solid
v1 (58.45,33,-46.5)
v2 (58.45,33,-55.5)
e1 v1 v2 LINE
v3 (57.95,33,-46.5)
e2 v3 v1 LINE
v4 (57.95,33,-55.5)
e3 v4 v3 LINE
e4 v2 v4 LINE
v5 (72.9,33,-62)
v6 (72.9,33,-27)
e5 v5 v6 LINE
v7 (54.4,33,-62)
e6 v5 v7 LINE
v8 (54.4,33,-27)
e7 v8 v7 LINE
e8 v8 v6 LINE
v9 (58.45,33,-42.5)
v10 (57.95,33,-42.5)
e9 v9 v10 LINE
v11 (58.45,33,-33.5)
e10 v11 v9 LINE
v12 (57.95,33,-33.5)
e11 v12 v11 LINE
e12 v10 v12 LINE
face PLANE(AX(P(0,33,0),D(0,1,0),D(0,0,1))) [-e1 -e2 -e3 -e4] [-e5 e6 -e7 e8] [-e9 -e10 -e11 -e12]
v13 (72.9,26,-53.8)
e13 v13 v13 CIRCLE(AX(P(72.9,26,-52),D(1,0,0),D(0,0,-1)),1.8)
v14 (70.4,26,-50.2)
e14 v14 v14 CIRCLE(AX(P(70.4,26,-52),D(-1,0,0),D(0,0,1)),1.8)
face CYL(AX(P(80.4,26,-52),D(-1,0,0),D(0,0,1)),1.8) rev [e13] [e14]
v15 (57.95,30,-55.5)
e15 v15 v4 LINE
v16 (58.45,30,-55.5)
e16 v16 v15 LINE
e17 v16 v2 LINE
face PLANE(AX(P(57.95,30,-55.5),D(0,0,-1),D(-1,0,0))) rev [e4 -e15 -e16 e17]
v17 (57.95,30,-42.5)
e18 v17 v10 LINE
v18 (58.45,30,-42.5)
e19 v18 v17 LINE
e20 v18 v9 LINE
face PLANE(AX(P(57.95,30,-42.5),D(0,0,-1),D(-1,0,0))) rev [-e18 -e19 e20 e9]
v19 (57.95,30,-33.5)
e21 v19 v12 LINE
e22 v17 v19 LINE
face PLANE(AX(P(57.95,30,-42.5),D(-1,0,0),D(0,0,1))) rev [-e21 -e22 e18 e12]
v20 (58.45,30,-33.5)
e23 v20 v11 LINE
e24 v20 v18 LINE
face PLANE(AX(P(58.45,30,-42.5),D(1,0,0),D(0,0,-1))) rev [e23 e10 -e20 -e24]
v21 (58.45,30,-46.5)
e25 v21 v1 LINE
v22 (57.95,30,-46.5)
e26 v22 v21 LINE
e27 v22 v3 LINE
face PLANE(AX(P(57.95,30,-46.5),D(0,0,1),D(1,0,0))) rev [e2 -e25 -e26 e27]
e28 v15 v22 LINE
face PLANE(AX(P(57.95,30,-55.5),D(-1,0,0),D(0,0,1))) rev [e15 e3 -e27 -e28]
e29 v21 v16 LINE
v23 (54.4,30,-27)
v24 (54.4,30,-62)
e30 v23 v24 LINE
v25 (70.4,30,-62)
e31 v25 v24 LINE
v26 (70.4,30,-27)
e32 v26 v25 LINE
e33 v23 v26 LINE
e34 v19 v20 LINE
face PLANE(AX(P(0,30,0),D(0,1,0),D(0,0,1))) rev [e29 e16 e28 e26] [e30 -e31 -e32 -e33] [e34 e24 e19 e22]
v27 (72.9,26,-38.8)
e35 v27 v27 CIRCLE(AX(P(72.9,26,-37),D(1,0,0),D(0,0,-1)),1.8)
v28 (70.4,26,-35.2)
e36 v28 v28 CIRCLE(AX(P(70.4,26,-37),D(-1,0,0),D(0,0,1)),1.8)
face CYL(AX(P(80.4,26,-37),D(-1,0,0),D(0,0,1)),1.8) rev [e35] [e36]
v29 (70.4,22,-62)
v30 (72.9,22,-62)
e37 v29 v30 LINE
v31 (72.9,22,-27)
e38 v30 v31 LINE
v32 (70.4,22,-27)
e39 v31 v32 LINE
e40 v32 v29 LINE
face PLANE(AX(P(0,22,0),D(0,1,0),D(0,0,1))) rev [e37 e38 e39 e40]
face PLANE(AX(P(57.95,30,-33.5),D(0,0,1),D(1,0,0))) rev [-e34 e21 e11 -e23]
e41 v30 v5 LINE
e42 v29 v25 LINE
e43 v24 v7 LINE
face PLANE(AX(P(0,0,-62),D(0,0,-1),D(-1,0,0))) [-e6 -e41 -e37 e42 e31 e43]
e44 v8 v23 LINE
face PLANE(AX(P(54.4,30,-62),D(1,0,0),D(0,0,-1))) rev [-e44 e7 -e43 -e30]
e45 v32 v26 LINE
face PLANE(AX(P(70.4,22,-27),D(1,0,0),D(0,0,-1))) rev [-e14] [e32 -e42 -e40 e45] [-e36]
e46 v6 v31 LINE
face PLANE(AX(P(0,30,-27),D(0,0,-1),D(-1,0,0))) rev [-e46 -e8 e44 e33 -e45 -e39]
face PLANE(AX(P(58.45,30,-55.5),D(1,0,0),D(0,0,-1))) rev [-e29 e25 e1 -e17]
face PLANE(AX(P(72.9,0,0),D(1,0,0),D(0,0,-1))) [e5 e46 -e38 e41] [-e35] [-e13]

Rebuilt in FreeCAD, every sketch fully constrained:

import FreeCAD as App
import Part
import Sketcher
from FreeCAD import Vector


def add_polygon(sketch, points):
    """Adds a closed chain of lines whose ends are joined by coincident constraints."""
    first, n = sketch.GeometryCount, len(points)
    for a, b in zip(points, points[1:] + points[:1]):
        sketch.addGeometry(Part.LineSegment(App.Vector(*a, 0), App.Vector(*b, 0)), False)
    for i in range(n):
        sketch.addConstraint(Sketcher.Constraint("Coincident", first + i, 2, first + (i + 1) % n, 1))

doc = App.newDocument("Part")
body = doc.addObject("PartDesign::Body", "Body")

sketch1 = body.newObject("Sketcher::SketchObject", "Sketch")
sketch1.AttachmentSupport = (doc.getObject("XZ_Plane"), [""])
sketch1.MapMode = "FlatFace"
add_polygon(sketch1, [(0, -2), (0, 0), (70.4, 0), (70.4, -2)])
sketch1.addConstraint(Sketcher.Constraint("Vertical", 0))
sketch1.addConstraint(Sketcher.Constraint("Horizontal", 1))
sketch1.addConstraint(Sketcher.Constraint("Vertical", 2))
sketch1.addConstraint(Sketcher.Constraint("Horizontal", 3))
sketch1.addConstraint(Sketcher.Constraint("Coincident", 0, 2, -1, 1))
sketch1.addConstraint(Sketcher.Constraint("DistanceY", 0, 1, 0, 2, 2.0))
sketch1.addConstraint(Sketcher.Constraint("DistanceX", 1, 1, 1, 2, 70.4))
pad1 = body.newObject("PartDesign::Pad", "Pad")
pad1.Profile = sketch1
pad1.Length = 10
pad1.Reversed = True

sketch2 = body.newObject("Sketcher::SketchObject", "Sketch001")
sketch2.AttachmentSupport = (doc.getObject("XZ_Plane"), [""])
sketch2.MapMode = "FlatFace"
sketch2.AttachmentOffset = App.Placement(Vector(0, 0, -10), App.Rotation())
add_polygon(sketch2, [(0, -57), (0, -2), (2, -2), (2, -57)])
add_polygon(sketch2, [(68.4, -57), (68.4, -2), (70.4, -2), (70.4, -57)])
sketch2.addConstraint(Sketcher.Constraint("Vertical", 0))
sketch2.addConstraint(Sketcher.Constraint("Horizontal", 1))
sketch2.addConstraint(Sketcher.Constraint("Vertical", 2))
sketch2.addConstraint(Sketcher.Constraint("Horizontal", 3))
sketch2.addConstraint(Sketcher.Constraint("Vertical", 4))
sketch2.addConstraint(Sketcher.Constraint("Horizontal", 5))
sketch2.addConstraint(Sketcher.Constraint("Vertical", 6))
sketch2.addConstraint(Sketcher.Constraint("Horizontal", 7))
sketch2.addConstraint(Sketcher.Constraint("PointOnObject", 0, 2, -2))
sketch2.addConstraint(Sketcher.Constraint("Horizontal", 1, 2, 4, 2))
sketch2.addConstraint(Sketcher.Constraint("Horizontal", 3, 2, 6, 2))
sketch2.addConstraint(Sketcher.Constraint("Equal", 3, 5))
sketch2.addConstraint(Sketcher.Constraint("DistanceX", 1, 1, 1, 2, 2.0))
sketch2.addConstraint(Sketcher.Constraint("DistanceY", 0, 1, 0, 2, 55.0))
sketch2.addConstraint(Sketcher.Constraint("DistanceY", 0, 2, -1, 1, 2.0))
sketch2.addConstraint(Sketcher.Constraint("DistanceX", -1, 1, 4, 2, 68.4))
pad2 = body.newObject("PartDesign::Pad", "Pad001")
pad2.Profile = sketch2
pad2.Length = 10

sketch3 = body.newObject("Sketcher::SketchObject", "Sketch002")
sketch3.AttachmentSupport = (doc.getObject("XY_Plane"), [""])
sketch3.MapMode = "FlatFace"
add_polygon(sketch3, [(25.7, 13), (25.7, 10), (44.7, 10), (44.7, 13)])
sketch3.addConstraint(Sketcher.Constraint("Vertical", 0))
sketch3.addConstraint(Sketcher.Constraint("Horizontal", 1))
sketch3.addConstraint(Sketcher.Constraint("Vertical", 2))
sketch3.addConstraint(Sketcher.Constraint("Horizontal", 3))
sketch3.addConstraint(Sketcher.Constraint("DistanceX", 1, 1, 1, 2, 19.0))
sketch3.addConstraint(Sketcher.Constraint("DistanceY", 0, 2, 0, 1, 3.0))
sketch3.addConstraint(Sketcher.Constraint("DistanceY", -1, 1, 0, 2, 10.0))
sketch3.addConstraint(Sketcher.Constraint("DistanceX", -1, 1, 0, 2, 25.7))
pad3 = body.newObject("PartDesign::Pad", "Pad002")
pad3.Profile = sketch3
pad3.Length = 2
pad3.Reversed = True

sketch4 = body.newObject("Sketcher::SketchObject", "Sketch003")
sketch4.AttachmentSupport = (doc.getObject("XY_Plane"), [""])
sketch4.MapMode = "FlatFace"
add_polygon(sketch4, [(27.7, 10), (27.7, 0), (42.7, 0), (42.7, 10)])
sketch4.addConstraint(Sketcher.Constraint("Vertical", 0))
sketch4.addConstraint(Sketcher.Constraint("Horizontal", 1))
sketch4.addConstraint(Sketcher.Constraint("Vertical", 2))
sketch4.addConstraint(Sketcher.Constraint("Horizontal", 3))
sketch4.addConstraint(Sketcher.Constraint("PointOnObject", 0, 2, -1))
sketch4.addConstraint(Sketcher.Constraint("DistanceX", 1, 1, 1, 2, 15.0))
sketch4.addConstraint(Sketcher.Constraint("DistanceY", 0, 2, 0, 1, 10.0))
sketch4.addConstraint(Sketcher.Constraint("DistanceX", -1, 1, 0, 2, 27.7))
pocket1 = body.newObject("PartDesign::Pocket", "Pocket")
pocket1.Profile = sketch4
pocket1.Length = 2

sketch5 = body.newObject("Sketcher::SketchObject", "Sketch004")
sketch5.AttachmentSupport = (doc.getObject("YZ_Plane"), [""])
sketch5.MapMode = "FlatFace"
sketch5.AttachmentOffset = App.Placement(Vector(0, 0, 25.7), App.Rotation())
add_polygon(sketch5, [(13, -2), (10, -2), (10, 0), (13, 0)])
sketch5.addConstraint(Sketcher.Constraint("Horizontal", 0))
sketch5.addConstraint(Sketcher.Constraint("Vertical", 1))
sketch5.addConstraint(Sketcher.Constraint("Horizontal", 2))
sketch5.addConstraint(Sketcher.Constraint("Vertical", 3))
sketch5.addConstraint(Sketcher.Constraint("PointOnObject", 1, 2, -1))
sketch5.addConstraint(Sketcher.Constraint("DistanceX", 0, 2, 0, 1, 3.0))
sketch5.addConstraint(Sketcher.Constraint("DistanceY", 1, 1, 1, 2, 2.0))
sketch5.addConstraint(Sketcher.Constraint("DistanceX", -1, 1, 0, 2, 10.0))
pad4 = body.newObject("PartDesign::Pad", "Pad003")
pad4.Profile = sketch5
pad4.Length = 1
pad4.Reversed = True

sketch6 = body.newObject("Sketcher::SketchObject", "Sketch005")
sketch6.AttachmentSupport = (doc.getObject("YZ_Plane"), [""])
sketch6.MapMode = "FlatFace"
sketch6.AttachmentOffset = App.Placement(Vector(0, 0, 44.7), App.Rotation())
add_polygon(sketch6, [(13, 0), (10, 0), (10, -2), (13, -2)])
sketch6.addConstraint(Sketcher.Constraint("Horizontal", 0))
sketch6.addConstraint(Sketcher.Constraint("Vertical", 1))
sketch6.addConstraint(Sketcher.Constraint("Horizontal", 2))
sketch6.addConstraint(Sketcher.Constraint("Vertical", 3))
sketch6.addConstraint(Sketcher.Constraint("PointOnObject", 0, 2, -1))
sketch6.addConstraint(Sketcher.Constraint("DistanceX", 0, 2, 0, 1, 3.0))
sketch6.addConstraint(Sketcher.Constraint("DistanceY", 1, 2, 1, 1, 2.0))
sketch6.addConstraint(Sketcher.Constraint("DistanceX", -1, 1, 0, 2, 10.0))
pad5 = body.newObject("PartDesign::Pad", "Pad004")
pad5.Profile = sketch6
pad5.Length = 1

sketch7 = body.newObject("Sketcher::SketchObject", "Sketch006")
sketch7.AttachmentSupport = (doc.getObject("YZ_Plane"), [""])
sketch7.MapMode = "FlatFace"
add_polygon(sketch7, [(2, -57), (0, -57), (0, 0), (2, 0)])
sketch7.addConstraint(Sketcher.Constraint("Horizontal", 0))
sketch7.addConstraint(Sketcher.Constraint("Vertical", 1))
sketch7.addConstraint(Sketcher.Constraint("Horizontal", 2))
sketch7.addConstraint(Sketcher.Constraint("Vertical", 3))
sketch7.addConstraint(Sketcher.Constraint("Coincident", 1, 2, -1, 1))
sketch7.addConstraint(Sketcher.Constraint("DistanceX", 0, 2, 0, 1, 2.0))
sketch7.addConstraint(Sketcher.Constraint("DistanceY", 1, 1, 1, 2, 57.0))
pad6 = body.newObject("PartDesign::Pad", "Pad005")
pad6.Profile = sketch7
pad6.Length = 6.6
pad6.Reversed = True

sketch8 = body.newObject("Sketcher::SketchObject", "Sketch007")
sketch8.AttachmentSupport = (doc.getObject("YZ_Plane"), [""])
sketch8.MapMode = "FlatFace"
sketch8.AttachmentOffset = App.Placement(Vector(0, 0, 70.4), App.Rotation())
add_polygon(sketch8, [(2, 0), (0, 0), (0, -57), (2, -57)])
sketch8.addConstraint(Sketcher.Constraint("Horizontal", 0))
sketch8.addConstraint(Sketcher.Constraint("Vertical", 1))
sketch8.addConstraint(Sketcher.Constraint("Horizontal", 2))
sketch8.addConstraint(Sketcher.Constraint("Vertical", 3))
sketch8.addConstraint(Sketcher.Constraint("Coincident", 0, 2, -1, 1))
sketch8.addConstraint(Sketcher.Constraint("DistanceX", 0, 2, 0, 1, 2.0))
sketch8.addConstraint(Sketcher.Constraint("DistanceY", 1, 2, 1, 1, 57.0))
pad7 = body.newObject("PartDesign::Pad", "Pad006")
pad7.Profile = sketch8
pad7.Length = 6.6

sketch9 = body.newObject("Sketcher::SketchObject", "Sketch008")
sketch9.AttachmentSupport = (doc.getObject("XY_Plane"), [""])
sketch9.MapMode = "FlatFace"
sketch9.AttachmentOffset = App.Placement(Vector(0, 0, -57), App.Rotation())
add_polygon(sketch9, [(2, 10), (2, 0), (-6.6, 0), (-6.6, 2), (0, 2), (0, 10)])
add_polygon(sketch9, [(77, 0), (68.4, 0), (68.4, 10), (70.4, 10), (70.4, 2), (77, 2)])
sketch9.addConstraint(Sketcher.Constraint("Vertical", 0))
sketch9.addConstraint(Sketcher.Constraint("Horizontal", 1))
sketch9.addConstraint(Sketcher.Constraint("Vertical", 2))
sketch9.addConstraint(Sketcher.Constraint("Horizontal", 3))
sketch9.addConstraint(Sketcher.Constraint("Vertical", 4))
sketch9.addConstraint(Sketcher.Constraint("Horizontal", 5))
sketch9.addConstraint(Sketcher.Constraint("Horizontal", 6))
sketch9.addConstraint(Sketcher.Constraint("Vertical", 7))
sketch9.addConstraint(Sketcher.Constraint("Horizontal", 8))
sketch9.addConstraint(Sketcher.Constraint("Vertical", 9))
sketch9.addConstraint(Sketcher.Constraint("Horizontal", 10))
sketch9.addConstraint(Sketcher.Constraint("Vertical", 11))
sketch9.addConstraint(Sketcher.Constraint("PointOnObject", 0, 2, -1))
sketch9.addConstraint(Sketcher.Constraint("PointOnObject", 3, 2, -2))
sketch9.addConstraint(Sketcher.Constraint("PointOnObject", 6, 2, -1))
sketch9.addConstraint(Sketcher.Constraint("Horizontal", 5, 2, 7, 2))
sketch9.addConstraint(Sketcher.Constraint("Horizontal", 3, 2, 9, 2))
sketch9.addConstraint(Sketcher.Constraint("Equal", 1, 6))
sketch9.addConstraint(Sketcher.Constraint("Equal", 5, 8))
sketch9.addConstraint(Sketcher.Constraint("Equal", 8, 2))
sketch9.addConstraint(Sketcher.Constraint("DistanceX", 5, 1, 5, 2, 2.0))
sketch9.addConstraint(Sketcher.Constraint("DistanceY", 0, 2, 0, 1, 10.0))
sketch9.addConstraint(Sketcher.Constraint("DistanceX", 1, 2, 1, 1, 8.6))
sketch9.addConstraint(Sketcher.Constraint("DistanceX", -1, 1, 10, 2, 77.0))
pad8 = body.newObject("PartDesign::Pad", "Pad007")
pad8.Profile = sketch9
pad8.Length = 5
pad8.Reversed = True

sketch10 = body.newObject("Sketcher::SketchObject", "Sketch009")
sketch10.AttachmentSupport = (doc.getObject("XZ_Plane"), [""])
sketch10.MapMode = "FlatFace"
sketch10.AttachmentOffset = App.Placement(Vector(0, 0, -10), App.Rotation())
add_polygon(sketch10, [(0, -62), (0, -17), (2, -17), (2, -62)])
add_polygon(sketch10, [(68.4, -27), (70.4, -27), (70.4, -62), (68.4, -62)])
sketch10.addConstraint(Sketcher.Constraint("Vertical", 0))
sketch10.addConstraint(Sketcher.Constraint("Horizontal", 1))
sketch10.addConstraint(Sketcher.Constraint("Vertical", 2))
sketch10.addConstraint(Sketcher.Constraint("Horizontal", 3))
sketch10.addConstraint(Sketcher.Constraint("Horizontal", 4))
sketch10.addConstraint(Sketcher.Constraint("Vertical", 5))
sketch10.addConstraint(Sketcher.Constraint("Horizontal", 6))
sketch10.addConstraint(Sketcher.Constraint("Vertical", 7))
sketch10.addConstraint(Sketcher.Constraint("PointOnObject", 0, 2, -2))
sketch10.addConstraint(Sketcher.Constraint("Horizontal", 3, 2, 5, 2))
sketch10.addConstraint(Sketcher.Constraint("Equal", 3, 4))
sketch10.addConstraint(Sketcher.Constraint("DistanceX", 1, 1, 1, 2, 2.0))
sketch10.addConstraint(Sketcher.Constraint("DistanceY", 0, 1, 0, 2, 45.0))
sketch10.addConstraint(Sketcher.Constraint("DistanceY", 5, 2, 5, 1, 35.0))
sketch10.addConstraint(Sketcher.Constraint("DistanceY", 0, 2, -1, 1, 17.0))
sketch10.addConstraint(Sketcher.Constraint("DistanceX", -1, 1, 4, 2, 70.4))
pad9 = body.newObject("PartDesign::Pad", "Pad008")
pad9.Profile = sketch10
pad9.Length = 20
pad9.Reversed = True

sketch11 = body.newObject("Sketcher::SketchObject", "Sketch010")
sketch11.AttachmentSupport = (doc.getObject("XZ_Plane"), [""])
sketch11.MapMode = "FlatFace"
sketch11.AttachmentOffset = App.Placement(Vector(0, 0, -30), App.Rotation())
add_polygon(sketch11, [(0, -17), (35.2, -17), (35.2, -27), (70.4, -27), (70.4, -62), (0, -62)])
sketch11.addConstraint(Sketcher.Constraint("Horizontal", 0))
sketch11.addConstraint(Sketcher.Constraint("Vertical", 1))
sketch11.addConstraint(Sketcher.Constraint("Horizontal", 2))
sketch11.addConstraint(Sketcher.Constraint("Vertical", 3))
sketch11.addConstraint(Sketcher.Constraint("Horizontal", 4))
sketch11.addConstraint(Sketcher.Constraint("Vertical", 5))
sketch11.addConstraint(Sketcher.Constraint("PointOnObject", 4, 2, -2))
sketch11.addConstraint(Sketcher.Constraint("Equal", 0, 2))
sketch11.addConstraint(Sketcher.Constraint("DistanceY", 1, 2, 1, 1, 10.0))
sketch11.addConstraint(Sketcher.Constraint("DistanceY", 3, 2, 3, 1, 35.0))
sketch11.addConstraint(Sketcher.Constraint("DistanceX", 0, 1, 0, 2, 35.2))
sketch11.addConstraint(Sketcher.Constraint("DistanceY", 0, 2, -1, 1, 17.0))
pad10 = body.newObject("PartDesign::Pad", "Pad009")
pad10.Profile = sketch11
pad10.Length = 3
pad10.Reversed = True

sketch12 = body.newObject("Sketcher::SketchObject", "Sketch011")
sketch12.AttachmentSupport = (doc.getObject("XZ_Plane"), [""])
sketch12.MapMode = "FlatFace"
sketch12.AttachmentOffset = App.Placement(Vector(0, 0, -33), App.Rotation())
add_polygon(sketch12, [(11.45, -55.5), (11.45, -46.5), (11.95, -46.5), (11.95, -55.5)])
add_polygon(sketch12, [(11.45, -42.5), (11.45, -33.5), (11.95, -33.5), (11.95, -42.5)])
add_polygon(sketch12, [(11.45, -30), (11.45, -21), (11.95, -21), (11.95, -30)])
add_polygon(sketch12, [(57.95, -55.5), (57.95, -46.5), (58.45, -46.5), (58.45, -55.5)])
add_polygon(sketch12, [(57.95, -42.5), (57.95, -33.5), (58.45, -33.5), (58.45, -42.5)])
sketch12.addConstraint(Sketcher.Constraint("Vertical", 0))
sketch12.addConstraint(Sketcher.Constraint("Horizontal", 1))
sketch12.addConstraint(Sketcher.Constraint("Vertical", 2))
sketch12.addConstraint(Sketcher.Constraint("Horizontal", 3))
sketch12.addConstraint(Sketcher.Constraint("Vertical", 4))
sketch12.addConstraint(Sketcher.Constraint("Horizontal", 5))
sketch12.addConstraint(Sketcher.Constraint("Vertical", 6))
sketch12.addConstraint(Sketcher.Constraint("Horizontal", 7))
sketch12.addConstraint(Sketcher.Constraint("Vertical", 8))
sketch12.addConstraint(Sketcher.Constraint("Horizontal", 9))
sketch12.addConstraint(Sketcher.Constraint("Vertical", 10))
sketch12.addConstraint(Sketcher.Constraint("Horizontal", 11))
sketch12.addConstraint(Sketcher.Constraint("Vertical", 12))
sketch12.addConstraint(Sketcher.Constraint("Horizontal", 13))
sketch12.addConstraint(Sketcher.Constraint("Vertical", 14))
sketch12.addConstraint(Sketcher.Constraint("Horizontal", 15))
sketch12.addConstraint(Sketcher.Constraint("Vertical", 16))
sketch12.addConstraint(Sketcher.Constraint("Horizontal", 17))
sketch12.addConstraint(Sketcher.Constraint("Vertical", 18))
sketch12.addConstraint(Sketcher.Constraint("Horizontal", 19))
sketch12.addConstraint(Sketcher.Constraint("Horizontal", 1, 2, 12, 2))
sketch12.addConstraint(Sketcher.Constraint("Horizontal", 3, 2, 14, 2))
sketch12.addConstraint(Sketcher.Constraint("Horizontal", 5, 2, 16, 2))
sketch12.addConstraint(Sketcher.Constraint("Horizontal", 7, 2, 18, 2))
sketch12.addConstraint(Sketcher.Constraint("Vertical", 3, 2, 4, 2))
sketch12.addConstraint(Sketcher.Constraint("Vertical", 2, 2, 5, 2))
sketch12.addConstraint(Sketcher.Constraint("Vertical", 7, 2, 8, 2))
sketch12.addConstraint(Sketcher.Constraint("Vertical", 6, 2, 9, 2))
sketch12.addConstraint(Sketcher.Constraint("Vertical", 15, 2, 16, 2))
sketch12.addConstraint(Sketcher.Constraint("Vertical", 14, 2, 17, 2))
sketch12.addConstraint(Sketcher.Constraint("Equal", 11, 13))
sketch12.addConstraint(Sketcher.Constraint("Equal", 2, 4))
sketch12.addConstraint(Sketcher.Constraint("Equal", 6, 8))
sketch12.addConstraint(Sketcher.Constraint("DistanceY", 0, 1, 0, 2, 9.0))
sketch12.addConstraint(Sketcher.Constraint("DistanceX", 1, 1, 1, 2, 0.5))
sketch12.addConstraint(Sketcher.Constraint("DistanceY", 8, 2, -1, 1, 21.0))
sketch12.addConstraint(Sketcher.Constraint("DistanceY", 0, 2, 4, 2, 13.0))
sketch12.addConstraint(Sketcher.Constraint("DistanceX", 1, 2, 12, 2, 46.0))
sketch12.addConstraint(Sketcher.Constraint("DistanceY", 0, 2, -1, 1, 46.5))
sketch12.addConstraint(Sketcher.Constraint("DistanceX", -1, 1, 0, 2, 11.45))
pocket2 = body.newObject("PartDesign::Pocket", "Pocket001")
pocket2.Profile = sketch12
pocket2.Length = 3
pocket2.Reversed = True

sketch13 = body.newObject("Sketcher::SketchObject", "Sketch012")
sketch13.AttachmentSupport = (doc.getObject("XZ_Plane"), [""])
sketch13.MapMode = "FlatFace"
sketch13.AttachmentOffset = App.Placement(Vector(0, 0, -33), App.Rotation())
add_polygon(sketch13, [(16, -62), (16, -17), (54.4, -17), (54.4, -62)])
sketch13.addConstraint(Sketcher.Constraint("Vertical", 0))
sketch13.addConstraint(Sketcher.Constraint("Horizontal", 1))
sketch13.addConstraint(Sketcher.Constraint("Vertical", 2))
sketch13.addConstraint(Sketcher.Constraint("Horizontal", 3))
sketch13.addConstraint(Sketcher.Constraint("DistanceY", 0, 1, 0, 2, 45.0))
sketch13.addConstraint(Sketcher.Constraint("DistanceX", 1, 1, 1, 2, 38.4))
sketch13.addConstraint(Sketcher.Constraint("DistanceX", -1, 1, 0, 2, 16.0))
sketch13.addConstraint(Sketcher.Constraint("DistanceY", 0, 2, -1, 1, 17.0))
pocket3 = body.newObject("PartDesign::Pocket", "Pocket002")
pocket3.Profile = sketch13
pocket3.Length = 3
pocket3.Reversed = True

sketch14 = body.newObject("Sketcher::SketchObject", "Sketch013")
sketch14.AttachmentSupport = (doc.getObject("XY_Plane"), [""])
sketch14.MapMode = "FlatFace"
add_polygon(sketch14, [(-6.6, 0), (27.7, 0), (27.7, 10), (42.7, 10), (42.7, 0), (77, 0), (77, 2), (70.4, 2), (70.4, 10), (45.7, 10), (45.7, 13), (24.7, 13), (24.7, 10), (0, 10), (0, 2), (-6.6, 2)])
sketch14.addConstraint(Sketcher.Constraint("Horizontal", 0))
sketch14.addConstraint(Sketcher.Constraint("Vertical", 1))
sketch14.addConstraint(Sketcher.Constraint("Horizontal", 2))
sketch14.addConstraint(Sketcher.Constraint("Vertical", 3))
sketch14.addConstraint(Sketcher.Constraint("Horizontal", 4))
sketch14.addConstraint(Sketcher.Constraint("Vertical", 5))
sketch14.addConstraint(Sketcher.Constraint("Horizontal", 6))
sketch14.addConstraint(Sketcher.Constraint("Vertical", 7))
sketch14.addConstraint(Sketcher.Constraint("Horizontal", 8))
sketch14.addConstraint(Sketcher.Constraint("Vertical", 9))
sketch14.addConstraint(Sketcher.Constraint("Horizontal", 10))
sketch14.addConstraint(Sketcher.Constraint("Vertical", 11))
sketch14.addConstraint(Sketcher.Constraint("Horizontal", 12))
sketch14.addConstraint(Sketcher.Constraint("Vertical", 13))
sketch14.addConstraint(Sketcher.Constraint("Horizontal", 14))
sketch14.addConstraint(Sketcher.Constraint("Vertical", 15))
sketch14.addConstraint(Sketcher.Constraint("PointOnObject", 0, 2, -1))
sketch14.addConstraint(Sketcher.Constraint("PointOnObject", 3, 2, -1))
sketch14.addConstraint(Sketcher.Constraint("PointOnObject", 12, 2, -2))
sketch14.addConstraint(Sketcher.Constraint("Horizontal", 2, 2, 7, 2))
sketch14.addConstraint(Sketcher.Constraint("Horizontal", 8, 2, 11, 2))
sketch14.addConstraint(Sketcher.Constraint("Horizontal", 6, 2, 13, 2))
sketch14.addConstraint(Sketcher.Constraint("Equal", 0, 4))
sketch14.addConstraint(Sketcher.Constraint("Equal", 8, 12))
sketch14.addConstraint(Sketcher.Constraint("Equal", 6, 14))
sketch14.addConstraint(Sketcher.Constraint("DistanceX", 2, 1, 2, 2, 15.0))
sketch14.addConstraint(Sketcher.Constraint("DistanceX", 10, 2, 10, 1, 21.0))
sketch14.addConstraint(Sketcher.Constraint("DistanceY", 1, 1, 1, 2, 10.0))
sketch14.addConstraint(Sketcher.Constraint("DistanceY", 5, 1, 5, 2, 2.0))
sketch14.addConstraint(Sketcher.Constraint("DistanceY", 9, 1, 9, 2, 3.0))
sketch14.addConstraint(Sketcher.Constraint("DistanceX", 0, 1, 0, 2, 34.3))
sketch14.addConstraint(Sketcher.Constraint("DistanceX", 6, 2, 6, 1, 6.6))
pad11 = body.newObject("PartDesign::Pad", "Pad010")
pad11.Profile = sketch14
pad11.Length = 0.5

sketch15 = body.newObject("Sketcher::SketchObject", "Sketch014")
sketch15.AttachmentSupport = (doc.getObject("XZ_Plane"), [""])
sketch15.MapMode = "FlatFace"
sketch15.AttachmentOffset = App.Placement(Vector(0, 0, -2), App.Rotation())
sketch15.addGeometry(Part.Circle(Vector(-3.3, -55, 0), Vector(0, 0, 1), 1.8), False)
sketch15.addGeometry(Part.Circle(Vector(73.7, -55, 0), Vector(0, 0, 1), 1.8), False)
sketch15.addGeometry(Part.Circle(Vector(-3.3, -6.5, 0), Vector(0, 0, 1), 1.8), False)
sketch15.addGeometry(Part.Circle(Vector(73.7, -6.5, 0), Vector(0, 0, 1), 1.8), False)
sketch15.addGeometry(Part.Circle(Vector(-3.3, -30.75, 0), Vector(0, 0, 1), 1.8), False)
sketch15.addGeometry(Part.Circle(Vector(73.7, -30.75, 0), Vector(0, 0, 1), 1.8), False)
add_polygon(sketch15, [(-4.8, -17), (-4.8, -12), (-1.8, -12), (-1.8, -17)])
add_polygon(sketch15, [(72.2, -17), (72.2, -12), (75.2, -12), (75.2, -17)])
sketch15.addConstraint(Sketcher.Constraint("Vertical", 6))
sketch15.addConstraint(Sketcher.Constraint("Horizontal", 7))
sketch15.addConstraint(Sketcher.Constraint("Vertical", 8))
sketch15.addConstraint(Sketcher.Constraint("Horizontal", 9))
sketch15.addConstraint(Sketcher.Constraint("Vertical", 10))
sketch15.addConstraint(Sketcher.Constraint("Horizontal", 11))
sketch15.addConstraint(Sketcher.Constraint("Vertical", 12))
sketch15.addConstraint(Sketcher.Constraint("Horizontal", 13))
sketch15.addConstraint(Sketcher.Constraint("Equal", 0, 1))
sketch15.addConstraint(Sketcher.Constraint("Equal", 1, 2))
sketch15.addConstraint(Sketcher.Constraint("Equal", 2, 3))
sketch15.addConstraint(Sketcher.Constraint("Equal", 3, 4))
sketch15.addConstraint(Sketcher.Constraint("Equal", 4, 5))
sketch15.addConstraint(Sketcher.Constraint("Horizontal", 0, 3, 1, 3))
sketch15.addConstraint(Sketcher.Constraint("Horizontal", 2, 3, 3, 3))
sketch15.addConstraint(Sketcher.Constraint("Horizontal", 4, 3, 5, 3))
sketch15.addConstraint(Sketcher.Constraint("Horizontal", 7, 2, 10, 2))
sketch15.addConstraint(Sketcher.Constraint("Horizontal", 9, 2, 12, 2))
sketch15.addConstraint(Sketcher.Constraint("Vertical", 0, 3, 2, 3))
sketch15.addConstraint(Sketcher.Constraint("Vertical", 1, 3, 3, 3))
sketch15.addConstraint(Sketcher.Constraint("Vertical", 2, 3, 4, 3))
sketch15.addConstraint(Sketcher.Constraint("Vertical", 3, 3, 5, 3))
sketch15.addConstraint(Sketcher.Constraint("Equal", 9, 11))
sketch15.addConstraint(Sketcher.Constraint("Diameter", 0, 3.6))
sketch15.addConstraint(Sketcher.Constraint("DistanceX", 7, 1, 7, 2, 3.0))
sketch15.addConstraint(Sketcher.Constraint("DistanceY", 6, 1, 6, 2, 5.0))
sketch15.addConstraint(Sketcher.Constraint("DistanceY", 0, 3, -1, 1, 55.0))
sketch15.addConstraint(Sketcher.Constraint("DistanceY", 6, 2, -1, 1, 12.0))
sketch15.addConstraint(Sketcher.Constraint("DistanceX", 0, 3, 1, 3, 77.0))
sketch15.addConstraint(Sketcher.Constraint("DistanceX", 7, 2, 10, 2, 74.0))
sketch15.addConstraint(Sketcher.Constraint("DistanceX", 0, 3, -1, 1, 3.3))
sketch15.addConstraint(Sketcher.Constraint("DistanceY", 2, 3, -1, 1, 6.5))
sketch15.addConstraint(Sketcher.Constraint("DistanceX", 6, 2, -1, 1, 4.8))
sketch15.addConstraint(Sketcher.Constraint("DistanceY", 4, 3, -1, 1, 30.75))
pocket4 = body.newObject("PartDesign::Pocket", "Pocket003")
pocket4.Profile = sketch15
pocket4.Length = 3
pocket4.Reversed = True

sketch16 = body.newObject("Sketcher::SketchObject", "Sketch015")
sketch16.AttachmentSupport = (doc.getObject("YZ_Plane"), [""])
sketch16.MapMode = "FlatFace"
add_polygon(sketch16, [(33, -62), (-26.797515, -62), (-26.797515, 14.208756), (33, 14.208756)])
sketch16.addConstraint(Sketcher.Constraint("Horizontal", 0))
sketch16.addConstraint(Sketcher.Constraint("Vertical", 1))
sketch16.addConstraint(Sketcher.Constraint("Horizontal", 2))
sketch16.addConstraint(Sketcher.Constraint("Vertical", 3))
sketch16.addConstraint(Sketcher.Constraint("DistanceY", 0, 2, -1, 1, 62.0))
sketch16.addConstraint(Sketcher.Constraint("DistanceX", -1, 1, 2, 2, 33.0))
sketch16.addConstraint(Sketcher.Constraint("DistanceX", 0, 2, 0, 1, 59.797515))
sketch16.addConstraint(Sketcher.Constraint("DistanceY", 1, 1, 1, 2, 76.208756))
pocket5 = body.newObject("PartDesign::Pocket", "Pocket004")
pocket5.Profile = sketch16
pocket5.Type = "TwoLengths"
pocket5.Length = 71
pocket5.Length2 = 51

sketch17 = body.newObject("Sketcher::SketchObject", "Sketch016")
sketch17.AttachmentSupport = (doc.getObject("YZ_Plane"), [""])
sketch17.MapMode = "FlatFace"
sketch17.AttachmentOffset = App.Placement(Vector(0, 0, 68.4), App.Rotation())
add_polygon(sketch17, [(30, -62), (-3.851054, -62), (-3.851054, 18.230136), (30, 18.230136)])
sketch17.addConstraint(Sketcher.Constraint("Horizontal", 0))
sketch17.addConstraint(Sketcher.Constraint("Vertical", 1))
sketch17.addConstraint(Sketcher.Constraint("Horizontal", 2))
sketch17.addConstraint(Sketcher.Constraint("Vertical", 3))
sketch17.addConstraint(Sketcher.Constraint("DistanceY", 0, 2, -1, 1, 62.0))
sketch17.addConstraint(Sketcher.Constraint("DistanceX", -1, 1, 2, 2, 30.0))
sketch17.addConstraint(Sketcher.Constraint("DistanceX", 0, 2, 0, 1, 33.851054))
sketch17.addConstraint(Sketcher.Constraint("DistanceY", 1, 1, 1, 2, 80.230136))
pocket6 = body.newObject("PartDesign::Pocket", "Pocket005")
pocket6.Profile = sketch17
pocket6.Type = "ThroughAll"
pocket6.Midplane = True

sketch18 = body.newObject("Sketcher::SketchObject", "Sketch017")
sketch18.AttachmentSupport = (doc.getObject("YZ_Plane"), [""])
sketch18.MapMode = "FlatFace"
sketch18.AttachmentOffset = App.Placement(Vector(0, 0, 70.4), App.Rotation())
add_polygon(sketch18, [(33, -27), (30, -27), (30, -62), (33, -62)])
sketch18.addConstraint(Sketcher.Constraint("Horizontal", 0))
sketch18.addConstraint(Sketcher.Constraint("Vertical", 1))
sketch18.addConstraint(Sketcher.Constraint("Horizontal", 2))
sketch18.addConstraint(Sketcher.Constraint("Vertical", 3))
sketch18.addConstraint(Sketcher.Constraint("DistanceX", 0, 2, 0, 1, 3.0))
sketch18.addConstraint(Sketcher.Constraint("DistanceY", 1, 2, 1, 1, 35.0))
sketch18.addConstraint(Sketcher.Constraint("DistanceX", -1, 1, 0, 2, 30.0))
sketch18.addConstraint(Sketcher.Constraint("DistanceY", 0, 2, -1, 1, 27.0))
pad12 = body.newObject("PartDesign::Pad", "Pad011")
pad12.Profile = sketch18
pad12.Length = 2.5

sketch19 = body.newObject("Sketcher::SketchObject", "Sketch018")
sketch19.AttachmentSupport = (doc.getObject("XZ_Plane"), [""])
sketch19.MapMode = "FlatFace"
sketch19.AttachmentOffset = App.Placement(Vector(0, 0, -30), App.Rotation())
add_polygon(sketch19, [(70.4, -27), (70.4, -62), (72.9, -62), (72.9, -27)])
sketch19.addConstraint(Sketcher.Constraint("Vertical", 0))
sketch19.addConstraint(Sketcher.Constraint("Horizontal", 1))
sketch19.addConstraint(Sketcher.Constraint("Vertical", 2))
sketch19.addConstraint(Sketcher.Constraint("Horizontal", 3))
sketch19.addConstraint(Sketcher.Constraint("DistanceY", 0, 2, 0, 1, 35.0))
sketch19.addConstraint(Sketcher.Constraint("DistanceX", 1, 1, 1, 2, 2.5))
sketch19.addConstraint(Sketcher.Constraint("DistanceY", 0, 2, -1, 1, 62.0))
sketch19.addConstraint(Sketcher.Constraint("DistanceX", -1, 1, 0, 2, 70.4))
pad13 = body.newObject("PartDesign::Pad", "Pad012")
pad13.Profile = sketch19
pad13.Length = 8

sketch20 = body.newObject("Sketcher::SketchObject", "Sketch019")
sketch20.AttachmentSupport = (doc.getObject("YZ_Plane"), [""])
sketch20.MapMode = "FlatFace"
sketch20.AttachmentOffset = App.Placement(Vector(0, 0, 70.4), App.Rotation())
sketch20.addGeometry(Part.Circle(Vector(26, -52, 0), Vector(0, 0, 1), 1.8), False)
sketch20.addGeometry(Part.Circle(Vector(26, -37, 0), Vector(0, 0, 1), 1.8), False)
sketch20.addConstraint(Sketcher.Constraint("Equal", 0, 1))
sketch20.addConstraint(Sketcher.Constraint("Vertical", 0, 3, 1, 3))
sketch20.addConstraint(Sketcher.Constraint("Diameter", 0, 3.6))
sketch20.addConstraint(Sketcher.Constraint("DistanceX", -1, 1, 0, 3, 26.0))
sketch20.addConstraint(Sketcher.Constraint("DistanceY", 0, 3, -1, 1, 52.0))
sketch20.addConstraint(Sketcher.Constraint("DistanceY", 1, 3, -1, 1, 37.0))
pocket7 = body.newObject("PartDesign::Pocket", "Pocket006")
pocket7.Profile = sketch20
pocket7.Length = 10
pocket7.Reversed = True

doc.recompute()
